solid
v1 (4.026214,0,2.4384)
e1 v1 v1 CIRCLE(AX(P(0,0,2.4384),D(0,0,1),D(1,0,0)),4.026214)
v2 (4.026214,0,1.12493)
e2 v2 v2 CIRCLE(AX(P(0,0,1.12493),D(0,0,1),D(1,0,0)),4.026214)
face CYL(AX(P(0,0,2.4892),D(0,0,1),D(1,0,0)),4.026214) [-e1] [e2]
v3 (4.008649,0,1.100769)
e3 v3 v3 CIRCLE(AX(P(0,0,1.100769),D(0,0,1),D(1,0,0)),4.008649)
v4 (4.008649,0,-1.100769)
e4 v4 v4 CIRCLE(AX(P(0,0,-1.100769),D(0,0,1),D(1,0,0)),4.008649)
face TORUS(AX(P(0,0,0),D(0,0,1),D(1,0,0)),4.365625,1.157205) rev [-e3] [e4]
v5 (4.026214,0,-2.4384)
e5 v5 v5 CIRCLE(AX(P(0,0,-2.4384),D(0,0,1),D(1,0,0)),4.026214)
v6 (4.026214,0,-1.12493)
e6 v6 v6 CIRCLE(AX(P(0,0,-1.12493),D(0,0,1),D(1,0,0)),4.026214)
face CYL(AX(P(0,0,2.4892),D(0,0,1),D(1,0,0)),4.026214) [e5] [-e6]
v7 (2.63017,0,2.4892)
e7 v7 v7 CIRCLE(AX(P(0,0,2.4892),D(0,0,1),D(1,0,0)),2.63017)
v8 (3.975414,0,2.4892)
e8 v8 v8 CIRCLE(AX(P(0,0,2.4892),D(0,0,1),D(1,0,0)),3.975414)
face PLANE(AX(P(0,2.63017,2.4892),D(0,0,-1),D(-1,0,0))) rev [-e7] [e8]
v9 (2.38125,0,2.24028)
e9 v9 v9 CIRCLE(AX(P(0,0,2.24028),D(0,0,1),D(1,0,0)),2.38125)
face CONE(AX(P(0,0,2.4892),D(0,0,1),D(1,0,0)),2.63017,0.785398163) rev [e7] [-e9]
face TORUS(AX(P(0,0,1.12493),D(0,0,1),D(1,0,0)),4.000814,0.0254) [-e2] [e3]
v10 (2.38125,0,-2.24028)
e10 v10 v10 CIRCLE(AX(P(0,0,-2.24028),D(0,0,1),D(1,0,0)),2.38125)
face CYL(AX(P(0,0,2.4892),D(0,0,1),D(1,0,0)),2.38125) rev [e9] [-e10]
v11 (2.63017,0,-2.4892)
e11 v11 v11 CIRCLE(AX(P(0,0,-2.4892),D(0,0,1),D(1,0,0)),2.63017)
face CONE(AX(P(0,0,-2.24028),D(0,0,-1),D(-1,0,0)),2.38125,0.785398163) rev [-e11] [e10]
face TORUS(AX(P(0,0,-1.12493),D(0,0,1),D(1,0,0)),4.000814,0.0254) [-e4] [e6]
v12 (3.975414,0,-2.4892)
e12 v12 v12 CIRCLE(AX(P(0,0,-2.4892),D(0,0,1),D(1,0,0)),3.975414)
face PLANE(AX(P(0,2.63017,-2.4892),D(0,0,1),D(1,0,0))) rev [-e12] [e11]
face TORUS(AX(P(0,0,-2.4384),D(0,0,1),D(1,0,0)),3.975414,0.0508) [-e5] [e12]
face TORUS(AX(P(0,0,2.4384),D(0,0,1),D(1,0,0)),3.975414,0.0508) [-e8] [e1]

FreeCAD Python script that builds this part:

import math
import FreeCAD as App
import Part
import Sketcher

V = App.Vector
Q = App.Units.Quantity

doc = App.newDocument("Part")
body = doc.addObject("PartDesign::Body", "Body")

# Sketch on YZ plane
sketch1 = body.newObject("Sketcher::SketchObject", "Sketch")
sketch1.AttachmentSupport = (doc.getObject("YZ_Plane"), [""])
sketch1.MapMode = "FlatFace"
sketch1.addGeometry([
    Part.LineSegment(V(2.381, -2.24, 0), V(2.63, -2.489, 0)),  # 0
    Part.LineSegment(V(2.63, -2.489, 0), V(3.975, -2.489, 0)),  # 1
    Part.ArcOfCircle(Part.Circle(V(3.975, -2.438, 0), V(0, 0, 1), 0.051), math.radians(-90), math.radians(0)),  # 2
    Part.LineSegment(V(4.026, -2.438, 0), V(4.026, -1.125, 0)),  # 3
    Part.ArcOfCircle(Part.Circle(V(4.001, -1.125, 0), V(0, 0, 1), 0.025), math.radians(0), math.radians(72)),  # 4
    Part.ArcOfCircle(Part.Circle(V(4.366, 0, 0), V(0, 0, 1), 1.157), math.radians(108), math.radians(252)),  # 5
    Part.ArcOfCircle(Part.Circle(V(4.001, 1.125, 0), V(0, 0, 1), 0.025), math.radians(-72), math.radians(0)),  # 6
    Part.LineSegment(V(4.026, 1.125, 0), V(4.026, 2.438, 0)),  # 7
    Part.ArcOfCircle(Part.Circle(V(3.975, 2.438, 0), V(0, 0, 1), 0.051), math.radians(0), math.radians(90)),  # 8
    Part.LineSegment(V(3.975, 2.489, 0), V(2.63, 2.489, 0)),  # 9
    Part.LineSegment(V(2.63, 2.489, 0), V(2.381, 2.24, 0)),  # 10
    Part.LineSegment(V(2.381, 2.24, 0), V(2.381, -2.24, 0)),  # 11
], False)
sketch1.addConstraint([
    Sketcher.Constraint("Coincident", 0, 2, 1, 1),
    Sketcher.Constraint("Tangent", 1, 2, 2, 1),
    Sketcher.Constraint("Tangent", 2, 2, 3, 1),
    Sketcher.Constraint("Tangent", 3, 2, 4, 1),
    Sketcher.Constraint("Tangent", 4, 2, 5, 2),
    Sketcher.Constraint("Tangent", 5, 1, 6, 1),
    Sketcher.Constraint("Tangent", 6, 2, 7, 1),
    Sketcher.Constraint("Tangent", 7, 2, 8, 1),
    Sketcher.Constraint("Tangent", 8, 2, 9, 1),
    Sketcher.Constraint("Coincident", 9, 2, 10, 1),
    Sketcher.Constraint("Coincident", 10, 2, 11, 1),
    Sketcher.Constraint("Coincident", 11, 2, 0, 1),
    Sketcher.Constraint("Horizontal", 1),
    Sketcher.Constraint("Vertical", 3),
    Sketcher.Constraint("Vertical", 7),
    Sketcher.Constraint("Horizontal", 9),
    Sketcher.Constraint("Vertical", 11),
    Sketcher.Constraint("Equal", 4, 6),
    Sketcher.Constraint("Equal", 2, 8),
    Sketcher.Constraint("Symmetric", 4, 3, 6, 3, -1),
    Sketcher.Constraint("Symmetric", 0, 2, 9, 2, -1),
    Sketcher.Constraint("Perpendicular", 0, 10),
    Sketcher.Constraint("Equal", 0, 10),
    Sketcher.Constraint("Radius", 2, Q("0.002 in")),
    Sketcher.Constraint("Radius", 4, Q("0.001 in")),
    Sketcher.Constraint("DistanceY", 11, 2, 11, 1, Q("0.1764 in")),
    Sketcher.Constraint("DistanceY", 2, 3, -1, 1, Q("0.096 in")),
    Sketcher.Constraint("DistanceX", -1, 1, 5, 3, Q("0.171875 in")),
    Sketcher.Constraint("DistanceX", -1, 1, 10, 2, Q("0.09375 in")),
    Sketcher.Constraint("Radius", 5, Q("1.157205 mm")),
    Sketcher.Constraint("DistanceY", 3, 1, 3, 2, Q("1.31347 mm")),
])
revolution = body.newObject("PartDesign::Revolution", "Revolution")
revolution.Profile = sketch1
revolution.ReferenceAxis = (sketch1, ["V_Axis"])
revolution.Angle = 360

doc.recompute()
